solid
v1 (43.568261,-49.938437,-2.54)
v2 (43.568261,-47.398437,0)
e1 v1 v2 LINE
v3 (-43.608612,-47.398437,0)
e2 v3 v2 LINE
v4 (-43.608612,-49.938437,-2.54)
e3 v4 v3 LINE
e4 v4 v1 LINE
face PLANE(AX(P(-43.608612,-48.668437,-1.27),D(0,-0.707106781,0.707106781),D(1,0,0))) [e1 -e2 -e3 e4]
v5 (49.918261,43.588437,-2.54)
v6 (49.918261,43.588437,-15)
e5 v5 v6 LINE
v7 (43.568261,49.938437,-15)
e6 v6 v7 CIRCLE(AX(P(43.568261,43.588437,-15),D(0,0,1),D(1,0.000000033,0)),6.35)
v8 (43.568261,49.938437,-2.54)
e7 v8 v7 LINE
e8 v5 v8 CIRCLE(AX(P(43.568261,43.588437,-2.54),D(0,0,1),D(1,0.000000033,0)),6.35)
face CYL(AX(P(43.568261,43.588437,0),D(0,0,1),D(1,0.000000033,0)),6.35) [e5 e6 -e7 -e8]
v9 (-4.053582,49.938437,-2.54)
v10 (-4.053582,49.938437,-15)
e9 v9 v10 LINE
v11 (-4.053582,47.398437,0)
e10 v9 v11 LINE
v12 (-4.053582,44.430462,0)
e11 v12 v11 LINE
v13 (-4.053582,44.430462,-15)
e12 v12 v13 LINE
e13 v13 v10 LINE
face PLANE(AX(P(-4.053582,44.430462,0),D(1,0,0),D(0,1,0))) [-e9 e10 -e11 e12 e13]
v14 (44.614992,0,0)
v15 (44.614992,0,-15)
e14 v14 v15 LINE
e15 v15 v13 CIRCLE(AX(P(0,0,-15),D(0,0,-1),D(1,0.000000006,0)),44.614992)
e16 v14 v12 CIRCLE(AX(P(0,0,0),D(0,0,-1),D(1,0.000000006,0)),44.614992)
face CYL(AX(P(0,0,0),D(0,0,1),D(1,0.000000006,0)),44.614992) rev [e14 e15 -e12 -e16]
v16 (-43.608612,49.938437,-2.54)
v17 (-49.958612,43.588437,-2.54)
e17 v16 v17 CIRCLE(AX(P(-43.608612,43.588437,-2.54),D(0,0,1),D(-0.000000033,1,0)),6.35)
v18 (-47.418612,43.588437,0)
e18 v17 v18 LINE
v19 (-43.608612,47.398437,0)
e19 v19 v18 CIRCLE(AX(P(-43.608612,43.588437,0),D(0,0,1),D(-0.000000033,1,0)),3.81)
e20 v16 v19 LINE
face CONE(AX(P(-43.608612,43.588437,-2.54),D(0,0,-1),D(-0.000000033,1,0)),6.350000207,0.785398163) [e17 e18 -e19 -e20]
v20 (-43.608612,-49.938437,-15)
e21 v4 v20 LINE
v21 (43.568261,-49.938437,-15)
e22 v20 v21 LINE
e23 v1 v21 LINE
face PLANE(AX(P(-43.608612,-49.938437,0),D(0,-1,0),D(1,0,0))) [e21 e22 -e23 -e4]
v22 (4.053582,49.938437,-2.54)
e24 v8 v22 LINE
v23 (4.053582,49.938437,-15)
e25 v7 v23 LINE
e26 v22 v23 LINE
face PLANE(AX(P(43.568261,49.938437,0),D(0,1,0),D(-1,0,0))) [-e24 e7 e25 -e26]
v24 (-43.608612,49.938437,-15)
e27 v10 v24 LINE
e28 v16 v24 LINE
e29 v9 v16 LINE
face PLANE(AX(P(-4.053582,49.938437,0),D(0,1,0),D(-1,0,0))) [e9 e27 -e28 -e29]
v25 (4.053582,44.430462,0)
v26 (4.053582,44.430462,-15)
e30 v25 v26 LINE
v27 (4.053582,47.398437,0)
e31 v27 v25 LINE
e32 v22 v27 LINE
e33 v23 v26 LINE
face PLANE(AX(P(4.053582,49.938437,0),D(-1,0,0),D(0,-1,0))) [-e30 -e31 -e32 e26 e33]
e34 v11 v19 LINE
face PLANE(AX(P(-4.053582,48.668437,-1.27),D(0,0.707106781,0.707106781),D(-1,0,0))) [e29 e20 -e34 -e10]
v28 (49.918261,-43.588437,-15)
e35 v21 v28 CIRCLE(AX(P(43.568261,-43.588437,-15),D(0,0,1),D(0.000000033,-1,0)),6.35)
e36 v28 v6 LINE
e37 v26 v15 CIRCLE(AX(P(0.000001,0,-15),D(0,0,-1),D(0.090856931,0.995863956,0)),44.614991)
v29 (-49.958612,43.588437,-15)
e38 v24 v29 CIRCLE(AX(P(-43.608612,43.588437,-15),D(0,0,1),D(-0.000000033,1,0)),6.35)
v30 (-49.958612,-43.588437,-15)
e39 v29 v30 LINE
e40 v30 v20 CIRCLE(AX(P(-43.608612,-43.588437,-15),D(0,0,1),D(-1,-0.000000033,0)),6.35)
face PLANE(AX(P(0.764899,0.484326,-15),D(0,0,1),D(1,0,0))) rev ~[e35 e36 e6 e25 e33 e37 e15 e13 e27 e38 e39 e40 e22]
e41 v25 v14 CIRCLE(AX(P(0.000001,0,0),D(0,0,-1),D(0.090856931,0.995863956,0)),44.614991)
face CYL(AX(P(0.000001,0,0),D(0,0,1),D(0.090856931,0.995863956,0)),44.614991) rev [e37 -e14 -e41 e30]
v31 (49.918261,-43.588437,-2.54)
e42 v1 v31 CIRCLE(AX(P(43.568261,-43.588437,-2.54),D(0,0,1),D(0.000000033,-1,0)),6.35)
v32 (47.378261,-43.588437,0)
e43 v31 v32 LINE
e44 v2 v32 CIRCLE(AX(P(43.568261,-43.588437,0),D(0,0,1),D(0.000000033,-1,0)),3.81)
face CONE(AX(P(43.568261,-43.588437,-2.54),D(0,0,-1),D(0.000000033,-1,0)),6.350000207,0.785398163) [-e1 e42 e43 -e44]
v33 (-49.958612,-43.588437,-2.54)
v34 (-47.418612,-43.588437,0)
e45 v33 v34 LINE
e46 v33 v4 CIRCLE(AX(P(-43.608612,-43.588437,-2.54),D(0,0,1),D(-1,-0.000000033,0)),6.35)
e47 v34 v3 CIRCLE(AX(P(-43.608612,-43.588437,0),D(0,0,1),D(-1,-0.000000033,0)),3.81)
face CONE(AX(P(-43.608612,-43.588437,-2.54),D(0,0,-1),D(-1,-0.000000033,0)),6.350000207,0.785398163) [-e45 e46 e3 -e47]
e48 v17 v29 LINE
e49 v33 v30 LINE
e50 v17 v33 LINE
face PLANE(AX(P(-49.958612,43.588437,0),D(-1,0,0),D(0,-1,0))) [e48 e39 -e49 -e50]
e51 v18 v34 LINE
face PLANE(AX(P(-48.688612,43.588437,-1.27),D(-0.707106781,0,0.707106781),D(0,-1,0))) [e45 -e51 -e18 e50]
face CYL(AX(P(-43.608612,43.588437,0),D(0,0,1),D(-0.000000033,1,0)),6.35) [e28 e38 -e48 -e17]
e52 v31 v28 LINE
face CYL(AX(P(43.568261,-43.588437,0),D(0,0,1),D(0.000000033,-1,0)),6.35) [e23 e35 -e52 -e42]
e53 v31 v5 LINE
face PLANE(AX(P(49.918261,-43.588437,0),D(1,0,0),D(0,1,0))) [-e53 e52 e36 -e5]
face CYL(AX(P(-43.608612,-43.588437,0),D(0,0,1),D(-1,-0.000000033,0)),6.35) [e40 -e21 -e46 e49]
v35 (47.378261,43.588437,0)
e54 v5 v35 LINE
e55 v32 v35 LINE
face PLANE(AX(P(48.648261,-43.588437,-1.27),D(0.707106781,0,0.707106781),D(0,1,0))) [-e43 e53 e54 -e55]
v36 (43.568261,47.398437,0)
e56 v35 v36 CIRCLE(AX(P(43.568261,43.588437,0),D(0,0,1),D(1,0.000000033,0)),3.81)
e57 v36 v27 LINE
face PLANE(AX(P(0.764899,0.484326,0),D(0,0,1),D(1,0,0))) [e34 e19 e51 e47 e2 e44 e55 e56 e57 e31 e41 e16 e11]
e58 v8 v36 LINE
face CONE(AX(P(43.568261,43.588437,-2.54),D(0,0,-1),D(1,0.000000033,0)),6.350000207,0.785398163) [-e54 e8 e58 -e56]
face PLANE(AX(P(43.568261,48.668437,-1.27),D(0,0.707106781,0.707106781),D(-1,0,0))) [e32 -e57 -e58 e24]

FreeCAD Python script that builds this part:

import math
import FreeCAD as App
import Part
import Sketcher

V = App.Vector
Q = App.Units.Quantity


def edges_at(feature, points):
    """Names of the edges that pass closest to the given points."""
    edges = feature.Shape.Edges
    near = lambda p: min(range(len(edges)), key=lambda i: edges[i].distToShape(Part.Vertex(*p))[0])
    return sorted({f"Edge{near(p) + 1}" for p in points})

doc = App.newDocument("Part")
params = doc.addObject("Spreadsheet::Sheet", "Params")
for row, (alias, value) in enumerate([
    ("sketch1_radius", "0.25 in"),
    ("pad1_length", "15 mm"),
    ("chamfer_size", "0.1 in"),
], start=1):
    params.set(f"A{row}", alias)
    params.set(f"B{row}", "=" + value)
    params.setAlias(f"B{row}", alias)

body = doc.addObject("PartDesign::Body", "Body")

sketch1 = body.newObject("Sketcher::SketchObject", "Sketch")
sketch1.AttachmentSupport = (doc.getObject("XY_Plane"), [""])
sketch1.MapMode = "FlatFace"
sketch1.addGeometry(Part.LineSegment(V(-44, -50, 0), V(44, -50, 0)), False)
sketch1.addGeometry(Part.ArcOfCircle(Part.Circle(V(44, -44, 0), V(0, 0, 1), 6), math.radians(-90), math.radians(0)), False)
sketch1.addGeometry(Part.LineSegment(V(50, -44, 0), V(50, 44, 0)), False)
sketch1.addGeometry(Part.ArcOfCircle(Part.Circle(V(44, 44, 0), V(0, 0, 1), 6), math.radians(0), math.radians(90)), False)
sketch1.addGeometry(Part.LineSegment(V(44, 50, 0), V(4, 50, 0)), False)
sketch1.addGeometry(Part.LineSegment(V(4, 50, 0), V(4, 44, 0)), False)
sketch1.addGeometry(Part.ArcOfCircle(Part.Circle(V(0, 0, 0), V(0, 0, 1), 45), math.radians(0), math.radians(85)), False)
sketch1.addGeometry(Part.ArcOfCircle(Part.Circle(V(0, 0, 0), V(0, 0, 1), 45), math.radians(95), math.radians(360)), False)
sketch1.addGeometry(Part.LineSegment(V(-4, 44, 0), V(-4, 50, 0)), False)
sketch1.addGeometry(Part.LineSegment(V(-4, 50, 0), V(-44, 50, 0)), False)
sketch1.addGeometry(Part.ArcOfCircle(Part.Circle(V(-44, 44, 0), V(0, 0, 1), 6), math.radians(90), math.radians(180)), False)
sketch1.addGeometry(Part.LineSegment(V(-50, 44, 0), V(-50, -44, 0)), False)
sketch1.addGeometry(Part.ArcOfCircle(Part.Circle(V(-44, -44, 0), V(0, 0, 1), 6), math.radians(-180), math.radians(-90)), False)
sketch1.addConstraint(Sketcher.Constraint("Tangent", 0, 2, 1, 1))
sketch1.addConstraint(Sketcher.Constraint("Tangent", 1, 2, 2, 1))
sketch1.addConstraint(Sketcher.Constraint("Tangent", 2, 2, 3, 1))
sketch1.addConstraint(Sketcher.Constraint("Tangent", 3, 2, 4, 1))
sketch1.addConstraint(Sketcher.Constraint("Coincident", 4, 2, 5, 1))
sketch1.addConstraint(Sketcher.Constraint("Coincident", 5, 2, 6, 2))
sketch1.addConstraint(Sketcher.Constraint("Tangent", 6, 1, 7, 2))
sketch1.addConstraint(Sketcher.Constraint("Coincident", 7, 1, 8, 1))
sketch1.addConstraint(Sketcher.Constraint("Coincident", 8, 2, 9, 1))
sketch1.addConstraint(Sketcher.Constraint("Tangent", 9, 2, 10, 1))
sketch1.addConstraint(Sketcher.Constraint("Tangent", 10, 2, 11, 1))
sketch1.addConstraint(Sketcher.Constraint("Tangent", 11, 2, 12, 1))
sketch1.addConstraint(Sketcher.Constraint("Tangent", 12, 2, 0, 1))
sketch1.addConstraint(Sketcher.Constraint("Horizontal", 0))
sketch1.addConstraint(Sketcher.Constraint("Vertical", 2))
sketch1.addConstraint(Sketcher.Constraint("Horizontal", 4))
sketch1.addConstraint(Sketcher.Constraint("Vertical", 5))
sketch1.addConstraint(Sketcher.Constraint("Vertical", 8))
sketch1.addConstraint(Sketcher.Constraint("Horizontal", 9))
sketch1.addConstraint(Sketcher.Constraint("Vertical", 11))
sketch1.addConstraint(Sketcher.Constraint("Coincident", 6, 3, -1, 1))
sketch1.addConstraint(Sketcher.Constraint("Equal", 1, 3))
sketch1.addConstraint(Sketcher.Constraint("Equal", 6, 7))
sketch1.addConstraint(Sketcher.Constraint("Equal", 3, 10))
sketch1.addConstraint(Sketcher.Constraint("Equal", 10, 12))
sketch1.addConstraint(Sketcher.Constraint("Symmetric", 4, 2, 8, 2, -2))
sketch1.addConstraint(Sketcher.Constraint("PointOnObject", 6, 1, -1))
sketch1.addConstraint(Sketcher.Constraint("Equal", 0, 2))
sketch1.addConstraint(Sketcher.Constraint("Radius", 1, Q("0.25 in")))
sketch1.addConstraint(Sketcher.Constraint("Radius", 6, 44.614991))
sketch1.addConstraint(Sketcher.Constraint("DistanceX", 4, 2, 4, 1, 39.514679))
sketch1.addConstraint(Sketcher.Constraint("DistanceX", 9, 2, 9, 1, 39.55503))
sketch1.addConstraint(Sketcher.Constraint("DistanceX", 0, 1, 0, 2, 87.176873))
sketch1.addConstraint(Sketcher.Constraint("DistanceY", 5, 2, 5, 1, 5.507975))
sketch1.setExpression("Constraints[28]", "Params.sketch1_radius")
pad1 = body.newObject("PartDesign::Pad", "Pad")
pad1.Profile = sketch1
pad1.setExpression("Length", "Params.pad1_length")
pad1.Reversed = True
doc.recompute()

chamfer = body.newObject("PartDesign::Chamfer", "Chamfer")
chamfer.Base = (pad1, edges_at(pad1, [(-49.959, 0, 0)]))
chamfer.setExpression("Size", "Params.chamfer_size")

doc.recompute()
